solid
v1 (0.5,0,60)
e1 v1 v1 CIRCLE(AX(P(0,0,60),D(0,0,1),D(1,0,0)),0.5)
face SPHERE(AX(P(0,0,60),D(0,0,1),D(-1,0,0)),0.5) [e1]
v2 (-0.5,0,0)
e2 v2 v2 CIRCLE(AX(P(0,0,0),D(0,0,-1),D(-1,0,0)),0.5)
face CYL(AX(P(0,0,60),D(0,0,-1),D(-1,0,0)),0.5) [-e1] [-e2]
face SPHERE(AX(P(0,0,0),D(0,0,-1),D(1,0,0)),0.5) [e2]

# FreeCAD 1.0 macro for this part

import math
import FreeCAD as App
import Part
import Sketcher

V = App.Vector

doc = App.newDocument("Part")
params = doc.addObject("Spreadsheet::Sheet", "Params")
for row, (alias, value) in enumerate([
    ("sketch1_diameter", "1 mm"),
    ("pad1_length", "60 mm"),
    ("sketch2_radius", "0.5 mm"),
    ("revolution_angle", "360 deg"),
    ("sketch3_radius", "0.5 mm"),
    ("revolution2_angle", "360 deg"),
], start=1):
    params.set(f"A{row}", alias)
    params.set(f"B{row}", "=" + value)
    params.setAlias(f"B{row}", alias)

body = doc.addObject("PartDesign::Body", "Body")

# Sketch on XY plane
sketch1 = doc.addObject("Sketcher::SketchObject", "Sketch")
body.addObject(sketch1)
sketch1.AttachmentSupport = (doc.XY_Plane, [""])
sketch1.MapMode = "FlatFace"
sketch1.addGeometry(Part.Circle(V(0, 0, 0), V(0, 0, 1), 0.5), False)
sketch1.addConstraint([
    Sketcher.Constraint("Coincident", 0, 3, -1, 1),
    Sketcher.Constraint("Diameter", 0, 1.0),
])
sketch1.setExpression("Constraints[1]", "Params.sketch1_diameter")
pad1 = doc.addObject("PartDesign::Pad", "Pad")
body.addObject(pad1)
pad1.Profile = sketch1
pad1.setExpression("Length", "Params.pad1_length")

# Sketch on XZ plane
sketch2 = doc.addObject("Sketcher::SketchObject", "Sketch001")
body.addObject(sketch2)
sketch2.AttachmentSupport = (doc.XZ_Plane, [""])
sketch2.MapMode = "FlatFace"
sketch2.addGeometry([
    Part.LineSegment(V(0, 60.5, 0), V(0, 60, 0)),
    Part.LineSegment(V(0, 60, 0), V(-0.5, 60, 0)),
    Part.ArcOfCircle(Part.Circle(V(0, 60, 0), V(0, 0, 1), 0.5), math.radians(90), math.radians(180)),
], False)
sketch2.addConstraint([
    Sketcher.Constraint("Coincident", 0, 2, 1, 1),
    Sketcher.Constraint("Coincident", 1, 2, 2, 2),
    Sketcher.Constraint("Coincident", 2, 1, 0, 1),
    Sketcher.Constraint("Vertical", 0),
    Sketcher.Constraint("Horizontal", 1),
    Sketcher.Constraint("Coincident", 0, 2, 2, 3),
    Sketcher.Constraint("PointOnObject", 2, 3, -2),
    Sketcher.Constraint("Radius", 2, 0.5),
    Sketcher.Constraint("DistanceY", -1, 1, 2, 3, 60.0),
])
sketch2.setExpression("Constraints[7]", "Params.sketch2_radius")
revolution = doc.addObject("PartDesign::Revolution", "Revolution")
body.addObject(revolution)
revolution.Profile = sketch2
revolution.ReferenceAxis = (sketch2, ["V_Axis"])
revolution.setExpression("Angle", "Params.revolution_angle")

# Sketch on XZ plane
sketch3 = doc.addObject("Sketcher::SketchObject", "Sketch002")
body.addObject(sketch3)
sketch3.AttachmentSupport = (doc.XZ_Plane, [""])
sketch3.MapMode = "FlatFace"
sketch3.addGeometry([
    Part.LineSegment(V(-0.5, 0, 0), V(0, 0, 0)),
    Part.LineSegment(V(0, 0, 0), V(0, -0.5, 0)),
    Part.ArcOfCircle(Part.Circle(V(0, 0, 0), V(0, 0, 1), 0.5), math.radians(180), math.radians(270)),
], False)
sketch3.addConstraint([
    Sketcher.Constraint("Coincident", 0, 2, 1, 1),
    Sketcher.Constraint("Coincident", 1, 2, 2, 2),
    Sketcher.Constraint("Coincident", 2, 1, 0, 1),
    Sketcher.Constraint("Horizontal", 0),
    Sketcher.Constraint("Vertical", 1),
    Sketcher.Constraint("Coincident", 2, 3, -1, 1),
    Sketcher.Constraint("Coincident", 0, 2, -1, 1),
    Sketcher.Constraint("Radius", 2, 0.5),
])
sketch3.setExpression("Constraints[7]", "Params.sketch3_radius")
revolution2 = doc.addObject("PartDesign::Revolution", "Revolution001")
body.addObject(revolution2)
revolution2.Profile = sketch3
revolution2.ReferenceAxis = (sketch3, ["V_Axis"])
revolution2.setExpression("Angle", "Params.revolution2_angle")

doc.recompute()
